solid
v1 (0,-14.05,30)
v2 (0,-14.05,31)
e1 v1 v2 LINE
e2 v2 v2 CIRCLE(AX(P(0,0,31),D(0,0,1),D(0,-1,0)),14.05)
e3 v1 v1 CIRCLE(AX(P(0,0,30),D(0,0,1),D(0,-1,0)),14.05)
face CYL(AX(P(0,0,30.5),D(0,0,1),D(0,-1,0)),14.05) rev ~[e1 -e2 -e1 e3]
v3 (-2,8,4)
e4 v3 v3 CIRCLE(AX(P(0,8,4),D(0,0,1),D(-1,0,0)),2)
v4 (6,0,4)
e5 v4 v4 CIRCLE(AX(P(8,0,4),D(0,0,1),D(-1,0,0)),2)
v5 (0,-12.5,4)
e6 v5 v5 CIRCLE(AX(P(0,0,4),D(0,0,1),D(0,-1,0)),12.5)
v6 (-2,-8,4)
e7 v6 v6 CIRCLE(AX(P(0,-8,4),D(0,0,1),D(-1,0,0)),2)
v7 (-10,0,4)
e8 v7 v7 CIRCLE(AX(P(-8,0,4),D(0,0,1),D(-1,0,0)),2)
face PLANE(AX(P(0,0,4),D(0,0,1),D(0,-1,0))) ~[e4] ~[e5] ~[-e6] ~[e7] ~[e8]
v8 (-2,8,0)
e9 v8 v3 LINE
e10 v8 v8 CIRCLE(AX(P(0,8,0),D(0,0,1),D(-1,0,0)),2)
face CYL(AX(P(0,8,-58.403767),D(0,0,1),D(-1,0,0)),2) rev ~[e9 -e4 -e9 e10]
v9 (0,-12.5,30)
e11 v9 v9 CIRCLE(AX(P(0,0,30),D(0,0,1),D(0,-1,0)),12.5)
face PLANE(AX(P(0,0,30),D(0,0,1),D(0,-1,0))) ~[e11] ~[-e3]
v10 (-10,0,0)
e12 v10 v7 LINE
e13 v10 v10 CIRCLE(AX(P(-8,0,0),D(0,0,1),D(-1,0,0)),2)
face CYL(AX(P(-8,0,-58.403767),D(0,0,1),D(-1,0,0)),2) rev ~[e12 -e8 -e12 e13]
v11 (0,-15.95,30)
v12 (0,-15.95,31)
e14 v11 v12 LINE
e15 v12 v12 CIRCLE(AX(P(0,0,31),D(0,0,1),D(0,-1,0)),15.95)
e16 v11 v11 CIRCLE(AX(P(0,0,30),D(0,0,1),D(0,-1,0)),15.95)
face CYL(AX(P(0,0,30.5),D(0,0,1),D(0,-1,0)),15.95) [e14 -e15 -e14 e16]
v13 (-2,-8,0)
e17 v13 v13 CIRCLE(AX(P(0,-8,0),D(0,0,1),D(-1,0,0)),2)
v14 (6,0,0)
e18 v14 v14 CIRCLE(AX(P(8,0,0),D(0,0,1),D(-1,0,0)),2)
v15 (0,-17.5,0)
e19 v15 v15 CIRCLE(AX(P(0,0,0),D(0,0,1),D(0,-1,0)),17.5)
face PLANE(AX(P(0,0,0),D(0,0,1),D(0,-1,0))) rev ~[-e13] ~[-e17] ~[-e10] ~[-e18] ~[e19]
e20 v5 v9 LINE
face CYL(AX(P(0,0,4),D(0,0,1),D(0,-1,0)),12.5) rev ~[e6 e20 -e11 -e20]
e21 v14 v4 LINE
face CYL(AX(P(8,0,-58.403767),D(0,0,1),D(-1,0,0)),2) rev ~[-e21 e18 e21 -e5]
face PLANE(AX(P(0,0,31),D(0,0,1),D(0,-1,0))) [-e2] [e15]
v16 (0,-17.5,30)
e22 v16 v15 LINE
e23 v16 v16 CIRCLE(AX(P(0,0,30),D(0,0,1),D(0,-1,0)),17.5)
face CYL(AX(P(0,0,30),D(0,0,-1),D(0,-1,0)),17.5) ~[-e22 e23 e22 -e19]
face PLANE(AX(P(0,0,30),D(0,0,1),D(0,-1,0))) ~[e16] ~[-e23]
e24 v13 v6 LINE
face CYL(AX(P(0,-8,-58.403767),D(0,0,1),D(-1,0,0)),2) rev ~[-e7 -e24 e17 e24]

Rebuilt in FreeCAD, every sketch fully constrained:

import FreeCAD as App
import Part
import Sketcher

V = App.Vector

doc = App.newDocument("Part")
body = doc.addObject("PartDesign::Body", "Body")

# Sketch on YZ plane
sketch1 = body.newObject("Sketcher::SketchObject", "Sketch")
sketch1.AttachmentSupport = (doc.getObject("YZ_Plane"), [""])
sketch1.MapMode = "FlatFace"
sketch1.addGeometry(Part.LineSegment(V(-17.5, 0, 0), V(0, 0, 0)), False)
sketch1.addGeometry(Part.LineSegment(V(0, 0, 0), V(0, 4, 0)), False)
sketch1.addGeometry(Part.LineSegment(V(0, 4, 0), V(-12.5, 4, 0)), False)
sketch1.addGeometry(Part.LineSegment(V(-12.5, 4, 0), V(-12.5, 30, 0)), False)
sketch1.addGeometry(Part.LineSegment(V(-12.5, 30, 0), V(-14.1, 30, 0)), False)
sketch1.addGeometry(Part.LineSegment(V(-14.1, 30, 0), V(-14.1, 31, 0)), False)
sketch1.addGeometry(Part.LineSegment(V(-14.1, 31, 0), V(-15.9, 31, 0)), False)
sketch1.addGeometry(Part.LineSegment(V(-15.9, 31, 0), V(-15.9, 30, 0)), False)
sketch1.addGeometry(Part.LineSegment(V(-15.9, 30, 0), V(-17.5, 30, 0)), False)
sketch1.addGeometry(Part.LineSegment(V(-17.5, 30, 0), V(-17.5, 0, 0)), False)
sketch1.addConstraint(Sketcher.Constraint("Coincident", 0, 2, 1, 1))
sketch1.addConstraint(Sketcher.Constraint("Coincident", 1, 2, 2, 1))
sketch1.addConstraint(Sketcher.Constraint("Coincident", 2, 2, 3, 1))
sketch1.addConstraint(Sketcher.Constraint("Coincident", 3, 2, 4, 1))
sketch1.addConstraint(Sketcher.Constraint("Coincident", 4, 2, 5, 1))
sketch1.addConstraint(Sketcher.Constraint("Coincident", 5, 2, 6, 1))
sketch1.addConstraint(Sketcher.Constraint("Coincident", 6, 2, 7, 1))
sketch1.addConstraint(Sketcher.Constraint("Coincident", 7, 2, 8, 1))
sketch1.addConstraint(Sketcher.Constraint("Coincident", 8, 2, 9, 1))
sketch1.addConstraint(Sketcher.Constraint("Coincident", 9, 2, 0, 1))
sketch1.addConstraint(Sketcher.Constraint("Horizontal", 0))
sketch1.addConstraint(Sketcher.Constraint("Vertical", 1))
sketch1.addConstraint(Sketcher.Constraint("Horizontal", 2))
sketch1.addConstraint(Sketcher.Constraint("Vertical", 3))
sketch1.addConstraint(Sketcher.Constraint("Horizontal", 4))
sketch1.addConstraint(Sketcher.Constraint("Vertical", 5))
sketch1.addConstraint(Sketcher.Constraint("Horizontal", 6))
sketch1.addConstraint(Sketcher.Constraint("Vertical", 7))
sketch1.addConstraint(Sketcher.Constraint("Horizontal", 8))
sketch1.addConstraint(Sketcher.Constraint("Vertical", 9))
sketch1.addConstraint(Sketcher.Constraint("Coincident", 0, 2, -1, 1))
sketch1.addConstraint(Sketcher.Constraint("Horizontal", 4, 2, 7, 2))
sketch1.addConstraint(Sketcher.Constraint("Equal", 4, 8))
sketch1.addConstraint(Sketcher.Constraint("DistanceY", 1, 1, 1, 2, 4.0))
sketch1.addConstraint(Sketcher.Constraint("DistanceY", 3, 1, 3, 2, 26.0))
sketch1.addConstraint(Sketcher.Constraint("DistanceY", 5, 1, 5, 2, 1.0))
sketch1.addConstraint(Sketcher.Constraint("DistanceX", 0, 1, 0, 2, 17.5))
sketch1.addConstraint(Sketcher.Constraint("DistanceX", 2, 2, 2, 1, 12.5))
sketch1.addConstraint(Sketcher.Constraint("DistanceX", 6, 2, 6, 1, 1.9))
revolution = body.newObject("PartDesign::Revolution", "Revolution")
revolution.Profile = sketch1
revolution.ReferenceAxis = (sketch1, ["V_Axis"])
revolution.Angle = 360

# Sketch on XY plane
sketch2 = body.newObject("Sketcher::SketchObject", "Sketch001")
sketch2.AttachmentSupport = (doc.getObject("XY_Plane"), [""])
sketch2.MapMode = "FlatFace"
sketch2.addGeometry(Part.Circle(V(8, 0, 0), V(0, 0, 1), 2), False)
sketch2.addGeometry(Part.Circle(V(0, -8, 0), V(0, 0, 1), 2), False)
sketch2.addGeometry(Part.Circle(V(0, 8, 0), V(0, 0, 1), 2), False)
sketch2.addGeometry(Part.Circle(V(-8, 0, 0), V(0, 0, 1), 2), False)
sketch2.addConstraint(Sketcher.Constraint("Equal", 0, 1))
sketch2.addConstraint(Sketcher.Constraint("Equal", 1, 2))
sketch2.addConstraint(Sketcher.Constraint("Equal", 2, 3))
sketch2.addConstraint(Sketcher.Constraint("Symmetric", 1, 3, 2, 3, -1, 1))
sketch2.addConstraint(Sketcher.Constraint("Symmetric", 0, 3, 3, 3, -1, 1))
sketch2.addConstraint(Sketcher.Constraint("PointOnObject", 0, 3, -1))
sketch2.addConstraint(Sketcher.Constraint("PointOnObject", 1, 3, -2))
sketch2.addConstraint(Sketcher.Constraint("Diameter", 0, 4.0))
sketch2.addConstraint(Sketcher.Constraint("DistanceX", -1, 1, 0, 3, 8.0))
sketch2.addConstraint(Sketcher.Constraint("DistanceY", 1, 3, -1, 1, 8.0))
doc.recompute()
hole = body.newObject("PartDesign::Hole", "Hole")
hole.Profile = sketch2
hole.ThreadType = "None"
hole.Diameter = 4
hole.DepthType = "ThroughAll"
hole.Reversed = True

doc.recompute()
